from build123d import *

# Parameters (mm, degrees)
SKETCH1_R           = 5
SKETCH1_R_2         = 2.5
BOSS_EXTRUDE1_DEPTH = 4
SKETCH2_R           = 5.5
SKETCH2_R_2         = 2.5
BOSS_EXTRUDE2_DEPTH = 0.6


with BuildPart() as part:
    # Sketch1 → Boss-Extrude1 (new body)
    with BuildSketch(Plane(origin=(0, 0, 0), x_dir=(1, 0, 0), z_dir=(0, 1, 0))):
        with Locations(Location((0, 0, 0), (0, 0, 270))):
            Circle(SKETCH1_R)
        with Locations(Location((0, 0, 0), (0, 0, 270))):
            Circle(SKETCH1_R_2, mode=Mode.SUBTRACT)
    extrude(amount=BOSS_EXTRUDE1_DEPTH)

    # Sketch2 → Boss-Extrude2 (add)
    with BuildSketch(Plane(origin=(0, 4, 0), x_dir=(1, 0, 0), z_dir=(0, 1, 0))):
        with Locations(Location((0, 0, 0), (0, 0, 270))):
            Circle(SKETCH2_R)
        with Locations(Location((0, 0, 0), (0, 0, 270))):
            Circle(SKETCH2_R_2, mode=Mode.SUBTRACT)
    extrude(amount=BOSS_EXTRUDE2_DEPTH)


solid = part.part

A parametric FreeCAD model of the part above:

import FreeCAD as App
import Part
import Sketcher

V = App.Vector

doc = App.newDocument("Part")
body = doc.addObject("PartDesign::Body", "Body")

sketch1 = body.newObject("Sketcher::SketchObject", "Sketch")
sketch1.AttachmentSupport = (doc.getObject("XZ_Plane"), [""])
sketch1.MapMode = "FlatFace"
sketch1.addGeometry([
    Part.Circle(V(0, 0, 0), V(0, 0, 1), 5),
    Part.Circle(V(0, 0, 0), V(0, 0, 1), 2.5),
], False)
sketch1.addConstraint([
    Sketcher.Constraint("Coincident", 0, 3, -1, 1),
    Sketcher.Constraint("Coincident", 1, 3, -1, 1),
    Sketcher.Constraint("Diameter", 0, 10.0),
    Sketcher.Constraint("Diameter", 1, 5.0),
])
pad1 = body.newObject("PartDesign::Pad", "Pad")
pad1.Profile = sketch1
pad1.Length = 4
pad1.Reversed = True

sketch2 = body.newObject("Sketcher::SketchObject", "Sketch001")
sketch2.AttachmentSupport = (doc.getObject("XZ_Plane"), [""])
sketch2.MapMode = "FlatFace"
sketch2.AttachmentOffset = App.Placement(V(0, 0, -4), App.Rotation())
sketch2.addGeometry([
    Part.Circle(V(0, 0, 0), V(0, 0, 1), 5.5),
    Part.Circle(V(0, 0, 0), V(0, 0, 1), 2.5),
], False)
sketch2.addConstraint([
    Sketcher.Constraint("Coincident", 0, 3, -1, 1),
    Sketcher.Constraint("Coincident", 1, 3, -1, 1),
    Sketcher.Constraint("Diameter", 0, 11.0),
    Sketcher.Constraint("Diameter", 1, 5.0),
])
pad2 = body.newObject("PartDesign::Pad", "Pad001")
pad2.Profile = sketch2
pad2.Length = 0.6
pad2.Reversed = True

doc.recompute()
